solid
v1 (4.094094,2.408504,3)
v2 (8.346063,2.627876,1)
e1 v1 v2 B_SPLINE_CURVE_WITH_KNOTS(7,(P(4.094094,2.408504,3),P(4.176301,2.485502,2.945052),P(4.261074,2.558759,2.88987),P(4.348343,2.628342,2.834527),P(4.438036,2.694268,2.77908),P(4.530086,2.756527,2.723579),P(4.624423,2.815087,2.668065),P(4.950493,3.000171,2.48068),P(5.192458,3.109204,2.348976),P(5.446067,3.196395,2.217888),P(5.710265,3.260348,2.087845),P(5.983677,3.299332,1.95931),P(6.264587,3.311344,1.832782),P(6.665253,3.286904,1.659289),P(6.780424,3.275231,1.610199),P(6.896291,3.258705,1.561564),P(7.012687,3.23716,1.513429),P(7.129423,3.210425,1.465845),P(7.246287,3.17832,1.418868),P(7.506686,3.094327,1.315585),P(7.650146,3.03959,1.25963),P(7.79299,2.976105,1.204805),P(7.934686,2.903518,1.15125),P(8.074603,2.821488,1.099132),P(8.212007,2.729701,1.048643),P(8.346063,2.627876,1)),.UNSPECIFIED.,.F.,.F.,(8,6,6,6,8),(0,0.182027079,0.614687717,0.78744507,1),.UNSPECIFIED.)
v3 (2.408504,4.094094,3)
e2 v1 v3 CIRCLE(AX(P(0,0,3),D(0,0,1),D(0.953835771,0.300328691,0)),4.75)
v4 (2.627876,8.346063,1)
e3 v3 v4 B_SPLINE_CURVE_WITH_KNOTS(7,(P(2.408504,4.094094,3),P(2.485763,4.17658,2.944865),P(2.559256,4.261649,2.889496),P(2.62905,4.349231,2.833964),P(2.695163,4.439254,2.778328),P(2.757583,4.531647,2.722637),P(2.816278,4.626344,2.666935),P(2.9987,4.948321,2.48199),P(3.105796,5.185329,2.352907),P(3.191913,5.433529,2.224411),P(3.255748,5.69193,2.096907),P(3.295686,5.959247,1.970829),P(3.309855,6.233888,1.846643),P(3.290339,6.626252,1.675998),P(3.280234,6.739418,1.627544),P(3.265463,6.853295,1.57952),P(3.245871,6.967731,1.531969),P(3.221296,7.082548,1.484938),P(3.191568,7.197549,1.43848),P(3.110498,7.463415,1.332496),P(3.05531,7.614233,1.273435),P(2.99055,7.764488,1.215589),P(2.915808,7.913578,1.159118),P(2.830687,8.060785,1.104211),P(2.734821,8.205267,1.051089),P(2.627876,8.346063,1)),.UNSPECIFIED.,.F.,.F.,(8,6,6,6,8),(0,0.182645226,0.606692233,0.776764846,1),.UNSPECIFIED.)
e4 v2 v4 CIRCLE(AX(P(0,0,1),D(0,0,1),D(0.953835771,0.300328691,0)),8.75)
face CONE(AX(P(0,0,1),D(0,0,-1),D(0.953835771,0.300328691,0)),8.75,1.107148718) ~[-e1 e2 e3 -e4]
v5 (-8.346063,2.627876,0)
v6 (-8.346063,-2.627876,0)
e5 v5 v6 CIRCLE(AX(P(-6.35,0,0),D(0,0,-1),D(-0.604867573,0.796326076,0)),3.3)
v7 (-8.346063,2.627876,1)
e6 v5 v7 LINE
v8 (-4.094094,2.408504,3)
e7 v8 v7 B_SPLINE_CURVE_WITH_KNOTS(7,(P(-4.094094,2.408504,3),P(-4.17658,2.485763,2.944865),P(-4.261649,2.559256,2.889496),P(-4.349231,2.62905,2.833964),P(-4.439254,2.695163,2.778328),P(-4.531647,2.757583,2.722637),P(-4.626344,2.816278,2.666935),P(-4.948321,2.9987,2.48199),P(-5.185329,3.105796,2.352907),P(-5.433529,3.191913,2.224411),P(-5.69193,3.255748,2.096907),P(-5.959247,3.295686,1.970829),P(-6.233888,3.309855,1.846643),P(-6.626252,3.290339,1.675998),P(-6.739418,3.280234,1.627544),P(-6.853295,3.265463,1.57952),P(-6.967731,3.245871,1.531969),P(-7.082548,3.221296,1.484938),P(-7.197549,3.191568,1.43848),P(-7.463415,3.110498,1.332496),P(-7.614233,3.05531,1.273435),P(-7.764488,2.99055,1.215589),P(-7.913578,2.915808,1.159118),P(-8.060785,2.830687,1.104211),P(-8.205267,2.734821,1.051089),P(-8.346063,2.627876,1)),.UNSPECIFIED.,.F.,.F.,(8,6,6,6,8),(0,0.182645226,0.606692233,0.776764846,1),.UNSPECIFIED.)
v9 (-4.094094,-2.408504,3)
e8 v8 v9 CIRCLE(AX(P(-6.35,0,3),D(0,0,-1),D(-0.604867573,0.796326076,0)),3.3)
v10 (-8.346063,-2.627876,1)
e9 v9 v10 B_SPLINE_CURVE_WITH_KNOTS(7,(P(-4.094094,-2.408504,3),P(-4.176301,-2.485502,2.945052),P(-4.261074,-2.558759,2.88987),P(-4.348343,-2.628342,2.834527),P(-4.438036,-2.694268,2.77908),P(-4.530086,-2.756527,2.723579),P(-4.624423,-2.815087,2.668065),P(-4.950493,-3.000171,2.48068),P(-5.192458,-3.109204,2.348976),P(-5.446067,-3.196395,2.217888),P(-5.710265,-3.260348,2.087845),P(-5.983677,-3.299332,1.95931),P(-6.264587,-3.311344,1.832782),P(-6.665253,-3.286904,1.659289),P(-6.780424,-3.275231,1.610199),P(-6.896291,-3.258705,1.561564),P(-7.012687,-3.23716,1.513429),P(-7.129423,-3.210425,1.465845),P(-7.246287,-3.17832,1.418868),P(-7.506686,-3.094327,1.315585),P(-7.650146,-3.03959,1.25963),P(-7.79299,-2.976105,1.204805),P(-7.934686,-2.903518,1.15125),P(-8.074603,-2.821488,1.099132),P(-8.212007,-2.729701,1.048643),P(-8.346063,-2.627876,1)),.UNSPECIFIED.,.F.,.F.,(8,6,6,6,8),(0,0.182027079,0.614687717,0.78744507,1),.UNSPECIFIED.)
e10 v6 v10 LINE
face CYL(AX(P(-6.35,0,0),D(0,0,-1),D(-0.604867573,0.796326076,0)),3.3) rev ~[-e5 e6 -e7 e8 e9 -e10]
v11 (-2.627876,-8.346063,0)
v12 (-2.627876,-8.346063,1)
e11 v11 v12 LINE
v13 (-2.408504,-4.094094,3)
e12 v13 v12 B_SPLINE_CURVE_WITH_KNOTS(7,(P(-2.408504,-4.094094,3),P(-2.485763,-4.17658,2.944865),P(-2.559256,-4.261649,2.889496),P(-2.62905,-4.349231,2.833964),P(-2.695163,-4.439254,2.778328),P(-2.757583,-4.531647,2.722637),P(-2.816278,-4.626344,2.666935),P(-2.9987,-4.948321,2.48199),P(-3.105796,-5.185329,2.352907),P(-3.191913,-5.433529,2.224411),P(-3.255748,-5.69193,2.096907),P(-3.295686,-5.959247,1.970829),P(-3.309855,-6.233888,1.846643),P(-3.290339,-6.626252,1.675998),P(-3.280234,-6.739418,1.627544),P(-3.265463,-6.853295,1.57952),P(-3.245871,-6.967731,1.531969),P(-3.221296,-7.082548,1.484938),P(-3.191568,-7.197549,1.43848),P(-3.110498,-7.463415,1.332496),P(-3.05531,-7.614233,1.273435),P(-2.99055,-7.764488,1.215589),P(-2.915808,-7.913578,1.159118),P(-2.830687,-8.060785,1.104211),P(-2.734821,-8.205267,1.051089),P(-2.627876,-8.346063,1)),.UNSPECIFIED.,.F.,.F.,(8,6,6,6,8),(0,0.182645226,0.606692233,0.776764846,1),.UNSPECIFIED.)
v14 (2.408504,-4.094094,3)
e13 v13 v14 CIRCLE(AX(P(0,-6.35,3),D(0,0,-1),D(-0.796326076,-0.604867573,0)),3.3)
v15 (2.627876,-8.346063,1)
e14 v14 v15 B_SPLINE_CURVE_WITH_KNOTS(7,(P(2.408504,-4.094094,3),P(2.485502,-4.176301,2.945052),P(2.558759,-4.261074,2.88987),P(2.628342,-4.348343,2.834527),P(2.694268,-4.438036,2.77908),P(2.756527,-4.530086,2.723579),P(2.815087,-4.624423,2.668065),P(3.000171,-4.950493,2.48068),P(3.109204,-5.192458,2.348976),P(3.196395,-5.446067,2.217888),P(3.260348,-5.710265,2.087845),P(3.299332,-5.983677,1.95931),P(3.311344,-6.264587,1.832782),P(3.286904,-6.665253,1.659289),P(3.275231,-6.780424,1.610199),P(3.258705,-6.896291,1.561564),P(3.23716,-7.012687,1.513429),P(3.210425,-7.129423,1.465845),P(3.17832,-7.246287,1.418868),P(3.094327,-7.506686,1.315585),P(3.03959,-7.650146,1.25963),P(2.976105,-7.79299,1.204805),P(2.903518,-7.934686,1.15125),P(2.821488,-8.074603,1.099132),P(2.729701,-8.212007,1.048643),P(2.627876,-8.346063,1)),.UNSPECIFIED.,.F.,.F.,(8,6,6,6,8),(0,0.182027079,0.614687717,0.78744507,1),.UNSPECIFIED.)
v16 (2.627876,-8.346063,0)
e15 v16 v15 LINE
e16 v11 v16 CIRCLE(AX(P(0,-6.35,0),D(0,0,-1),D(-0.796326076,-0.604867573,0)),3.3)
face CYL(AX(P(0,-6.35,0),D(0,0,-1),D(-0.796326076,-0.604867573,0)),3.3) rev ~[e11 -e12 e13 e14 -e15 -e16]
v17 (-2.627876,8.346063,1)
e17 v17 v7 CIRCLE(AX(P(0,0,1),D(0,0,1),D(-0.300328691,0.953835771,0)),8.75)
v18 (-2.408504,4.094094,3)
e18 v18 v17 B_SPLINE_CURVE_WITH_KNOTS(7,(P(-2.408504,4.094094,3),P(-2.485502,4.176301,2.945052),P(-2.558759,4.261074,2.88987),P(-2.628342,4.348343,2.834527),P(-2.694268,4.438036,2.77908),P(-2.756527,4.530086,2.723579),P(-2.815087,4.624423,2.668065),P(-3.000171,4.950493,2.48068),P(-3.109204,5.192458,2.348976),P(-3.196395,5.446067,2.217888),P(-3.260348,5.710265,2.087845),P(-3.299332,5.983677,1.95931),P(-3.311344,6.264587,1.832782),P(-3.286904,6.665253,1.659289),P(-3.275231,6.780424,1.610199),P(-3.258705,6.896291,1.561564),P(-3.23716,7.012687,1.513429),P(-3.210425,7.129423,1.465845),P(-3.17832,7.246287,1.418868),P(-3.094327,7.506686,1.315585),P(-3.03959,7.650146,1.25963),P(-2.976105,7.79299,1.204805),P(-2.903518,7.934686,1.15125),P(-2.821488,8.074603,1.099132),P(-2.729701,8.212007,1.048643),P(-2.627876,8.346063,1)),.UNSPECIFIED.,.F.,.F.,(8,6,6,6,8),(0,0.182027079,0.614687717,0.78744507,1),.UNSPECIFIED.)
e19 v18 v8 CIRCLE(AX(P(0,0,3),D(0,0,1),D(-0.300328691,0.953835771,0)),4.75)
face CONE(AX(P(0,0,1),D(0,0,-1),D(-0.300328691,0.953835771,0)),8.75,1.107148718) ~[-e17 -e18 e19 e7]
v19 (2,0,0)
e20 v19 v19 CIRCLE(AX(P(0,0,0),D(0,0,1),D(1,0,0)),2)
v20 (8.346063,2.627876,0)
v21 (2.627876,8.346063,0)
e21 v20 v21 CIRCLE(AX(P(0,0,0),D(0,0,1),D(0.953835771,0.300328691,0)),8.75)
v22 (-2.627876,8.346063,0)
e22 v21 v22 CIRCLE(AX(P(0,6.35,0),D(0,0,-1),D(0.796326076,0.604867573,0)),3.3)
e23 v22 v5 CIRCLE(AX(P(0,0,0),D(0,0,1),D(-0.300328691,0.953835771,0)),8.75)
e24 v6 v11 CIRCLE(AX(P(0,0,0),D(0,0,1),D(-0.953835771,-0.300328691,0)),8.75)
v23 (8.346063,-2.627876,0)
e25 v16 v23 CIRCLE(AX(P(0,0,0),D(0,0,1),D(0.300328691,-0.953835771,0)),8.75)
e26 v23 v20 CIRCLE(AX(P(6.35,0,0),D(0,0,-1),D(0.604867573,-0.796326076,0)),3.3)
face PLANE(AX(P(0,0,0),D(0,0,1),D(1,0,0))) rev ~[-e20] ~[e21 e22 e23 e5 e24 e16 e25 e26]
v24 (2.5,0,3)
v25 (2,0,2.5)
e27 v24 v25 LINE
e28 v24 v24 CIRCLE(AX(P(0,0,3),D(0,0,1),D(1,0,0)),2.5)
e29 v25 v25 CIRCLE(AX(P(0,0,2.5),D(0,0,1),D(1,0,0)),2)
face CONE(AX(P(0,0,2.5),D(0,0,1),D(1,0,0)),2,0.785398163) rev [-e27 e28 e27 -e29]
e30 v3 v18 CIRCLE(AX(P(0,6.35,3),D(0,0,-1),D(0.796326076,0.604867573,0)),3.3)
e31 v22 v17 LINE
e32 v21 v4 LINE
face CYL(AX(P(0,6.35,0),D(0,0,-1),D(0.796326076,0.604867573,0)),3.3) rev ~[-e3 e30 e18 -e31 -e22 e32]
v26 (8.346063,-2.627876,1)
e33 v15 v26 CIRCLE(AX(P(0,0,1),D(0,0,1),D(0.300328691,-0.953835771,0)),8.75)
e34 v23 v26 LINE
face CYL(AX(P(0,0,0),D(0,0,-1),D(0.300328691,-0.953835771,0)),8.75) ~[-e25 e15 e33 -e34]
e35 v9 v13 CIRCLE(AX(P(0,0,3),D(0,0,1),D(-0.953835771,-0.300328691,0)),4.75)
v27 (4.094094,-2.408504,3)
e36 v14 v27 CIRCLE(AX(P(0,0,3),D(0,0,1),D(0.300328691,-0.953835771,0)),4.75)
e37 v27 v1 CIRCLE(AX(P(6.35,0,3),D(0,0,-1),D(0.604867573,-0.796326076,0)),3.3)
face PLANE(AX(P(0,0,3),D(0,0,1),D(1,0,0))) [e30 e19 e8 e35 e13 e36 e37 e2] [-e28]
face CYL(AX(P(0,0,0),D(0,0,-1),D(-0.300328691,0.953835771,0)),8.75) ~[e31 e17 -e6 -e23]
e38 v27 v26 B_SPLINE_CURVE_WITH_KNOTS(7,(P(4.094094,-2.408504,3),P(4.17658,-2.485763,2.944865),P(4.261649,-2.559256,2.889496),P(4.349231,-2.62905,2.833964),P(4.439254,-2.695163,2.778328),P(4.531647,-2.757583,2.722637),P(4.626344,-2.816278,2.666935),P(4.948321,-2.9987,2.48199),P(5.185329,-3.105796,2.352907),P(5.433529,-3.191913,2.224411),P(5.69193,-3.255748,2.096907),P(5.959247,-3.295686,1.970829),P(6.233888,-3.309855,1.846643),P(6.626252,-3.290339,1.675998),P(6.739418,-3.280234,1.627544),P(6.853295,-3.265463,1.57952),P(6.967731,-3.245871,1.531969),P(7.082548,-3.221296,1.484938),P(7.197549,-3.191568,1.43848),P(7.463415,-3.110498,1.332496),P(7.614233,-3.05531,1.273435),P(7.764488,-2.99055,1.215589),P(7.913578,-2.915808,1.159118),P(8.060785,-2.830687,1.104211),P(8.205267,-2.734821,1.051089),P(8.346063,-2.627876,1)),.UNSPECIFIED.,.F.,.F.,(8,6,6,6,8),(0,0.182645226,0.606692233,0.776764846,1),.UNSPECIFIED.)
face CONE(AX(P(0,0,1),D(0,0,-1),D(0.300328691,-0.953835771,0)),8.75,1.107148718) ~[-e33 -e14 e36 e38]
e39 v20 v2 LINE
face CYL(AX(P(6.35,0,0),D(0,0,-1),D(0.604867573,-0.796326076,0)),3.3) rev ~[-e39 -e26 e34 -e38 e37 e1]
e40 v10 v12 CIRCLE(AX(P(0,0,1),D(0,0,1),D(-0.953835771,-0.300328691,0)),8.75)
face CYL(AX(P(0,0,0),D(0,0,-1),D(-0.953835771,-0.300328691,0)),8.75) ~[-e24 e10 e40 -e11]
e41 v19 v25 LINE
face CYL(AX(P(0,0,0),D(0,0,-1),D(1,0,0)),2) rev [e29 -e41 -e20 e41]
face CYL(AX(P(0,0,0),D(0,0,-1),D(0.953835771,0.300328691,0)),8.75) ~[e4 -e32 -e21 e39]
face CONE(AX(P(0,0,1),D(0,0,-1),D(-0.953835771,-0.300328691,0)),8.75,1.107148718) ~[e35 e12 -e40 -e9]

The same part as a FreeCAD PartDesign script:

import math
import FreeCAD as App
import Part
import Sketcher
from FreeCAD import Vector


def edges_at(feature, points):
    """Names of the edges that pass closest to the given points."""
    edges = feature.Shape.Edges
    near = lambda p: min(range(len(edges)), key=lambda i: edges[i].distToShape(Part.Vertex(*p))[0])
    return sorted({f"Edge{near(p) + 1}" for p in points})

doc = App.newDocument("Part")
body = doc.addObject("PartDesign::Body", "Body")

# Sketch on XY plane
sketch1 = doc.addObject("Sketcher::SketchObject", "Sketch")
body.addObject(sketch1)
sketch1.AttachmentSupport = (doc.XY_Plane, [""])
sketch1.MapMode = "FlatFace"
sketch1.addGeometry([
    Part.ArcOfCircle(Part.Circle(Vector(-6.35, 0, 0), Vector(0, 0, 1), 3.3), math.radians(-127.219313), math.radians(127.219313)),  # 0
    Part.ArcOfCircle(Part.Circle(Vector(0, 0, 0), Vector(0, 0, 1), 8.75), math.radians(-162.522654), math.radians(-107.477346)),  # 1
    Part.ArcOfCircle(Part.Circle(Vector(0, -6.35, 0), Vector(0, 0, 1), 3.3), math.radians(-37.219313), math.radians(217.219313)),  # 2
    Part.ArcOfCircle(Part.Circle(Vector(0, 0, 0), Vector(0, 0, 1), 8.75), math.radians(-72.522654), math.radians(-17.477346)),  # 3
    Part.ArcOfCircle(Part.Circle(Vector(6.35, 0, 0), Vector(0, 0, 1), 3.3), math.radians(52.780687), math.radians(307.219313)),  # 4
    Part.ArcOfCircle(Part.Circle(Vector(0, 0, 0), Vector(0, 0, 1), 8.75), math.radians(17.477346), math.radians(72.522654)),  # 5
    Part.ArcOfCircle(Part.Circle(Vector(0, 6.35, 0), Vector(0, 0, 1), 3.3), math.radians(142.780687), math.radians(397.219313)),  # 6
    Part.ArcOfCircle(Part.Circle(Vector(0, 0, 0), Vector(0, 0, 1), 8.75), math.radians(107.477346), math.radians(162.522654)),  # 7
    Part.Circle(Vector(0, 0, 0), Vector(0, 0, 1), 2),  # 8
], False)
sketch1.addConstraint([
    Sketcher.Constraint("Coincident", 0, 1, 1, 1),
    Sketcher.Constraint("Coincident", 1, 2, 2, 2),
    Sketcher.Constraint("Coincident", 2, 1, 3, 1),
    Sketcher.Constraint("Coincident", 3, 2, 4, 2),
    Sketcher.Constraint("Coincident", 4, 1, 5, 1),
    Sketcher.Constraint("Coincident", 5, 2, 6, 2),
    Sketcher.Constraint("Coincident", 6, 1, 7, 1),
    Sketcher.Constraint("Coincident", 7, 2, 0, 2),
    Sketcher.Constraint("Coincident", 1, 3, -1, 1),
    Sketcher.Constraint("Coincident", 3, 3, -1, 1),
    Sketcher.Constraint("Coincident", 5, 3, -1, 1),
    Sketcher.Constraint("Coincident", 7, 3, -1, 1),
    Sketcher.Constraint("Coincident", 8, 3, -1, 1),
    Sketcher.Constraint("Equal", 0, 2),
    Sketcher.Constraint("Equal", 1, 3),
    Sketcher.Constraint("Equal", 2, 4),
    Sketcher.Constraint("Equal", 3, 5),
    Sketcher.Constraint("Equal", 4, 6),
    Sketcher.Constraint("Equal", 5, 7),
    Sketcher.Constraint("Symmetric", 0, 3, 4, 3, -1, 1),
    Sketcher.Constraint("Symmetric", 2, 3, 6, 3, -1, 1),
    Sketcher.Constraint("PointOnObject", 0, 3, -1),
    Sketcher.Constraint("PointOnObject", 2, 3, -2),
    Sketcher.Constraint("Diameter", 8, 4.0),
    Sketcher.Constraint("Radius", 0, 3.3),
    Sketcher.Constraint("Radius", 1, 8.75),
    Sketcher.Constraint("DistanceX", 0, 3, 4, 3, 12.7),
    Sketcher.Constraint("DistanceY", 2, 3, -1, 1, 6.35),
])
pad1 = doc.addObject("PartDesign::Pad", "Pad")
body.addObject(pad1)
pad1.Profile = sketch1
pad1.Length = 3
doc.recompute()

chamfer = doc.addObject("PartDesign::Chamfer", "Chamfer")
body.addObject(chamfer)
chamfer.Base = (pad1, edges_at(pad1, [
    (-6.187, 6.187, 3),
    (-6.187, -6.187, 3),
    (6.187, -6.187, 3),
    (6.187, 6.187, 3),
]))
chamfer.ChamferType = "Two distances"
chamfer.Size = 4
chamfer.Size2 = 2
chamfer.FlipDirection = True
doc.recompute()

chamfer2 = doc.addObject("PartDesign::Chamfer", "Chamfer001")
body.addObject(chamfer2)
chamfer2.Base = (chamfer, edges_at(chamfer, [(-2, 0, 3)]))
chamfer2.Size = 0.5

doc.recompute()
